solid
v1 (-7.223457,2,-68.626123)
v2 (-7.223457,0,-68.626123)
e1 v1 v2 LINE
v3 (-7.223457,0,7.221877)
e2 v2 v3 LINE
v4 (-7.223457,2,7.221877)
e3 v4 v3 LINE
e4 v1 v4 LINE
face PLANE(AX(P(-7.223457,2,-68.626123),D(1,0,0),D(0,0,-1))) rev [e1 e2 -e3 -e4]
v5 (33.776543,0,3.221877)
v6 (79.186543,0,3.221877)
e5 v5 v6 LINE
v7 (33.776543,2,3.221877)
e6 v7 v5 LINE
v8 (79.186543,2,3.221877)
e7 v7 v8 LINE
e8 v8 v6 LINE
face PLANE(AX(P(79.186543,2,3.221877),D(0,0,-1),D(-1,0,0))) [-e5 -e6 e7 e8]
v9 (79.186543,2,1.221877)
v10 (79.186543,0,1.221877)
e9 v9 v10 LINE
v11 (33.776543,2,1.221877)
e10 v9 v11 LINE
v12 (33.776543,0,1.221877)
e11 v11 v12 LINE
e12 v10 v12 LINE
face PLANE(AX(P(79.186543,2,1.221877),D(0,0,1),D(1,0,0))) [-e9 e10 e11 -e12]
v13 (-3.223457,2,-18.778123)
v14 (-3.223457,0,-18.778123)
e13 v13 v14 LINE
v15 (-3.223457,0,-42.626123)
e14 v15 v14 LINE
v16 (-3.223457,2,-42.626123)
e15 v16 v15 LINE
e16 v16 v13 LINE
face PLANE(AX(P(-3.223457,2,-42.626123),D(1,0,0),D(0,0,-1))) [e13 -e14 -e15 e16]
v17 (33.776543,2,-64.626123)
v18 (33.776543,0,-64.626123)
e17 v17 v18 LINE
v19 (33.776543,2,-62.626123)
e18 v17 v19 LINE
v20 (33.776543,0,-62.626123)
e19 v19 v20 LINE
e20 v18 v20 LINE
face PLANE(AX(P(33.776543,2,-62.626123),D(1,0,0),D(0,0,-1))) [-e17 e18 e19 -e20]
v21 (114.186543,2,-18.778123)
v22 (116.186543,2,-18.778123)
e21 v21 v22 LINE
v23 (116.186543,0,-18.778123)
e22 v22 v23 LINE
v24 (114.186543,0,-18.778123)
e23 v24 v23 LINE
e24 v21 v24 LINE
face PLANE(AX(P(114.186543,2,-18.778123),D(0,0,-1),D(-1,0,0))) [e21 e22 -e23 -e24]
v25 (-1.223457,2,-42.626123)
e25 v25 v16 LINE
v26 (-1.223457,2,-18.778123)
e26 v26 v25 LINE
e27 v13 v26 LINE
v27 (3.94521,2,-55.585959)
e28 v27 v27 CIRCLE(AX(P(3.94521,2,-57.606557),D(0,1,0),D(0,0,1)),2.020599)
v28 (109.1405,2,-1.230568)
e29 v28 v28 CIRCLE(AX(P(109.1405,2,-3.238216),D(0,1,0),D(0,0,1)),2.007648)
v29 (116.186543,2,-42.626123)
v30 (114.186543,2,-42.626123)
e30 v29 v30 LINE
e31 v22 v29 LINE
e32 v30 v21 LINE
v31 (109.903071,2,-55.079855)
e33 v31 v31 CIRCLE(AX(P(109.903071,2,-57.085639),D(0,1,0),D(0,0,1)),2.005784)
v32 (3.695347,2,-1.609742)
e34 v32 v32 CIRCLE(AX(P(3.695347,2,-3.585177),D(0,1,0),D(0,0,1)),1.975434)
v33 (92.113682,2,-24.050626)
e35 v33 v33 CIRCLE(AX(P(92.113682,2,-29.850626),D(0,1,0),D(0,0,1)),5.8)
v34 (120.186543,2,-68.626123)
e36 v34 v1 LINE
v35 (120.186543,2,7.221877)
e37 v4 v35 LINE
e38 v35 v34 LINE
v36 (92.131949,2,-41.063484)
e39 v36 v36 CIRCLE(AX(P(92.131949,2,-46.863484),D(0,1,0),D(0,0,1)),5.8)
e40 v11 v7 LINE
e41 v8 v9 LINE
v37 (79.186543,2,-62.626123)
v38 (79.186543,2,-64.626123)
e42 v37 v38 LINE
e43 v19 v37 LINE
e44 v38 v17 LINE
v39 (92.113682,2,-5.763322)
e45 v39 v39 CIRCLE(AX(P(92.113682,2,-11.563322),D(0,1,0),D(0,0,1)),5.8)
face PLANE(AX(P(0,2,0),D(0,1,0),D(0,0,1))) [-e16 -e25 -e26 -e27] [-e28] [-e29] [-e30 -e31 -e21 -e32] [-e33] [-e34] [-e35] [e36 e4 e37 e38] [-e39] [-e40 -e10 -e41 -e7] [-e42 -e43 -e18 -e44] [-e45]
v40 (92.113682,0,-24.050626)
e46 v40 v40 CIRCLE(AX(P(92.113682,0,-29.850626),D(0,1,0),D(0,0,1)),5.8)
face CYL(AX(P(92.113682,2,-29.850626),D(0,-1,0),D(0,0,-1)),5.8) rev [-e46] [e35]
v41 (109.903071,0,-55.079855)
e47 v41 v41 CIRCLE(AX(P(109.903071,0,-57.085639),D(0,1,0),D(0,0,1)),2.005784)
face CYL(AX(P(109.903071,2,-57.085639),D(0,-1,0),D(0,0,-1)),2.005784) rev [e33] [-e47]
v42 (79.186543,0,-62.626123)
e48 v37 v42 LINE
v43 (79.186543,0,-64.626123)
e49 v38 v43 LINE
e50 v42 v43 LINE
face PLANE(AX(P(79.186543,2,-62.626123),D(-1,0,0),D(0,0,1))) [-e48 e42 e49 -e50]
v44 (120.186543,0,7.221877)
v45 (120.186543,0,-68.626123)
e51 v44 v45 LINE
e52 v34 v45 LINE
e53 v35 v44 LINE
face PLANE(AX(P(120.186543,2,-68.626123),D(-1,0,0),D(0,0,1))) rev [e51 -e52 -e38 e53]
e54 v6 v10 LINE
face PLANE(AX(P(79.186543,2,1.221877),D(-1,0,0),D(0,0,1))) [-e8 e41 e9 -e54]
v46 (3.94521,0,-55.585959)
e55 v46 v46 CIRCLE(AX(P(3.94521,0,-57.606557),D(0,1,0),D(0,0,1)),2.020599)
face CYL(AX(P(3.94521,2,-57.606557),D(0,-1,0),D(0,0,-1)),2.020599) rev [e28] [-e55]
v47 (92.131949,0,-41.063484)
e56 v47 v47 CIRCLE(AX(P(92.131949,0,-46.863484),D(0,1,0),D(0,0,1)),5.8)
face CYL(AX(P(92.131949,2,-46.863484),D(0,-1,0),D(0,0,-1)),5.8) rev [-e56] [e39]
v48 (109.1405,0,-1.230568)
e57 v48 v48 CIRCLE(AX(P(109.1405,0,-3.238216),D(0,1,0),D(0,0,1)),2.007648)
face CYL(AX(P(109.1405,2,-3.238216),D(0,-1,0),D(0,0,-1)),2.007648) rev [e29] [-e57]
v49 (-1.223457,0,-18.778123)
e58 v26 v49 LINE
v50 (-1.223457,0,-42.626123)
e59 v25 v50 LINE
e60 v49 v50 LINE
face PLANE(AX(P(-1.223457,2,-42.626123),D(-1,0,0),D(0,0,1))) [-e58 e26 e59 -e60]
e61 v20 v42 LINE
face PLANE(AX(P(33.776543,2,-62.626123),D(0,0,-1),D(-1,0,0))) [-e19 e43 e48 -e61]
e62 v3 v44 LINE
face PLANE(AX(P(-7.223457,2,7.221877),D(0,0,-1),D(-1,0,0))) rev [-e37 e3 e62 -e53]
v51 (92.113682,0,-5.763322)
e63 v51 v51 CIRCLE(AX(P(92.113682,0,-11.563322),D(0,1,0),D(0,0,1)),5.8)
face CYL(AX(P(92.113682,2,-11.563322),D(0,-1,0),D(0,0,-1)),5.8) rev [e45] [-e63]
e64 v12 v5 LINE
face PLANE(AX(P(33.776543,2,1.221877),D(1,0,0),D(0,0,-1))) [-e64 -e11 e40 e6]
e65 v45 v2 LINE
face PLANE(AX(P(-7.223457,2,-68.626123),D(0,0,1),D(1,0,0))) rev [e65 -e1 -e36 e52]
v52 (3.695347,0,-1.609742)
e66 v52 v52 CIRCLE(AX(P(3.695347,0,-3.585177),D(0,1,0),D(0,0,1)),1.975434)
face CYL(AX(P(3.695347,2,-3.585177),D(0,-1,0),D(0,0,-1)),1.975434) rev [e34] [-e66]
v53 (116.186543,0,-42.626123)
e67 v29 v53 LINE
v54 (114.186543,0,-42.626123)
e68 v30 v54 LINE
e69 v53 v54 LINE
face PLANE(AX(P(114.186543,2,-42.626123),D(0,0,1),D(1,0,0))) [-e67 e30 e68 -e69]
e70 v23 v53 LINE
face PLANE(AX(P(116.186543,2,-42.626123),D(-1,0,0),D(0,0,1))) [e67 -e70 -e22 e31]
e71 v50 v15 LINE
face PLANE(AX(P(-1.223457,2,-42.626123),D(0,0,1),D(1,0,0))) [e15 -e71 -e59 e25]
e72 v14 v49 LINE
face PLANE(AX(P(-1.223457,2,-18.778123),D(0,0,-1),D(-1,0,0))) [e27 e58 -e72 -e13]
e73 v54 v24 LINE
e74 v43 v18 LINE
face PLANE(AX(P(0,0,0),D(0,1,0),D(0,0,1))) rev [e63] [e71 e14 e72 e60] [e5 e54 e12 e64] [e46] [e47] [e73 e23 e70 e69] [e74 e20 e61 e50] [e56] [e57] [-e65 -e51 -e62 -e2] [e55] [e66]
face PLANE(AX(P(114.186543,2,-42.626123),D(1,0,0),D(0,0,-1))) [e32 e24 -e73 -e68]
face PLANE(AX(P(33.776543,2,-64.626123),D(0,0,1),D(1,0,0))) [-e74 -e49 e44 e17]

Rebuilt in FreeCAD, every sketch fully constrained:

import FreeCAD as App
import Part
import Sketcher

V = App.Vector


def add_polygon(sketch, points):
    """Adds a closed chain of lines whose ends are joined by coincident constraints."""
    first, n = sketch.GeometryCount, len(points)
    for a, b in zip(points, points[1:] + points[:1]):
        sketch.addGeometry(Part.LineSegment(App.Vector(*a, 0), App.Vector(*b, 0)), False)
    for i in range(n):
        sketch.addConstraint(Sketcher.Constraint("Coincident", first + i, 2, first + (i + 1) % n, 1))

doc = App.newDocument("Part")
body = doc.addObject("PartDesign::Body", "Body")

# Sketch on XZ plane
sketch1 = body.newObject("Sketcher::SketchObject", "Sketch")
sketch1.AttachmentSupport = (doc.getObject("XZ_Plane"), [""])
sketch1.MapMode = "FlatFace"
add_polygon(sketch1, [(-7.2, -68.6), (-7.2, 7.2), (120.2, 7.2), (120.2, -68.6)])  # lines 0-3
sketch1.addGeometry(Part.Circle(V(3.7, -3.6, 0), V(0, 0, 1), 2), False)  # 4
add_polygon(sketch1, [(-1.2, -18.8), (-3.2, -18.8), (-3.2, -42.6), (-1.2, -42.6)])  # lines 5-8
add_polygon(sketch1, [(79.2, 3.2), (33.8, 3.2), (33.8, 1.2), (79.2, 1.2)])  # lines 9-12
sketch1.addGeometry(Part.Circle(V(109.1, -3.2, 0), V(0, 0, 1), 2), False)  # 13
sketch1.addGeometry(Part.Circle(V(92.1, -11.6, 0), V(0, 0, 1), 5.8), False)  # 14
sketch1.addGeometry(Part.Circle(V(92.1, -29.9, 0), V(0, 0, 1), 5.8), False)  # 15
add_polygon(sketch1, [(116.2, -18.8), (114.2, -18.8), (114.2, -42.6), (116.2, -42.6)])  # lines 16-19
sketch1.addGeometry(Part.Circle(V(3.9, -57.6, 0), V(0, 0, 1), 2), False)  # 20
sketch1.addGeometry(Part.Circle(V(92.1, -46.9, 0), V(0, 0, 1), 5.8), False)  # 21
add_polygon(sketch1, [(79.2, -62.6), (33.8, -62.6), (33.8, -64.6), (79.2, -64.6)])  # lines 22-25
sketch1.addGeometry(Part.Circle(V(109.9, -57.1, 0), V(0, 0, 1), 2), False)  # 26
sketch1.addConstraint([
    Sketcher.Constraint("Vertical", 0),
    Sketcher.Constraint("Horizontal", 1),
    Sketcher.Constraint("Vertical", 2),
    Sketcher.Constraint("Horizontal", 3),
    Sketcher.Constraint("Horizontal", 5),
    Sketcher.Constraint("Vertical", 6),
    Sketcher.Constraint("Horizontal", 7),
    Sketcher.Constraint("Vertical", 8),
    Sketcher.Constraint("Horizontal", 9),
    Sketcher.Constraint("Vertical", 10),
    Sketcher.Constraint("Horizontal", 11),
    Sketcher.Constraint("Vertical", 12),
    Sketcher.Constraint("Horizontal", 16),
    Sketcher.Constraint("Vertical", 17),
    Sketcher.Constraint("Horizontal", 18),
    Sketcher.Constraint("Vertical", 19),
    Sketcher.Constraint("Horizontal", 22),
    Sketcher.Constraint("Vertical", 23),
    Sketcher.Constraint("Horizontal", 24),
    Sketcher.Constraint("Vertical", 25),
    Sketcher.Constraint("Equal", 14, 15),
    Sketcher.Constraint("Equal", 15, 21),
    Sketcher.Constraint("Horizontal", 8, 2, 16, 2),
    Sketcher.Constraint("Horizontal", 7, 2, 17, 2),
    Sketcher.Constraint("Vertical", 14, 3, 15, 3),
    Sketcher.Constraint("Vertical", 10, 2, 22, 2),
    Sketcher.Constraint("Vertical", 12, 2, 24, 2),
    Sketcher.Constraint("Equal", 7, 16),
    Sketcher.Constraint("Equal", 18, 10),
    Sketcher.Constraint("Equal", 12, 23),
    Sketcher.Constraint("Diameter", 14, 11.6),
    Sketcher.Constraint("DistanceX", 5, 2, 5, 1, 2.0),
    Sketcher.Constraint("DistanceX", 0, 2, 5, 2, 4.0),
    Sketcher.Constraint("DistanceY", 5, 2, 0, 2, 26.0),
    Sketcher.Constraint("DistanceY", 3, 2, 6, 2, 26.0),
    Sketcher.Constraint("DistanceX", 0, 2, 9, 2, 41.0),
    Sketcher.Constraint("DistanceY", 9, 2, 0, 2, 4.0),
    Sketcher.Constraint("DistanceX", 11, 2, 1, 2, 41.0),
    Sketcher.Constraint("DistanceX", 16, 2, 1, 2, 6.0),
    Sketcher.Constraint("DistanceY", 22, 2, 7, 2, 20.0),
    Sketcher.Constraint("DistanceX", 1, 1, 1, 2, 127.41),
    Sketcher.Constraint("Diameter", 4, 3.950869),
    Sketcher.Constraint("Diameter", 26, 4.011569),
    Sketcher.Constraint("DistanceY", 0, 1, 0, 2, 75.848),
    Sketcher.Constraint("Diameter", 13, 4.015295),
    Sketcher.Constraint("Diameter", 20, 4.041197),
    Sketcher.Constraint("DistanceX", -1, 1, 13, 3, 109.1405),
    Sketcher.Constraint("DistanceX", 4, 3, 21, 3, 88.436602),
    Sketcher.Constraint("DistanceY", 14, 3, 0, 2, 18.785199),
    Sketcher.Constraint("DistanceX", -1, 1, 20, 3, 3.94521),
    Sketcher.Constraint("DistanceX", -1, 1, 21, 3, 92.131949),
    Sketcher.Constraint("DistanceX", -1, 1, 26, 3, 109.903071),
    Sketcher.Constraint("DistanceY", 26, 3, -1, 1, 57.085639),
    Sketcher.Constraint("DistanceY", 4, 3, 13, 3, 0.346961),
    Sketcher.Constraint("DistanceY", 15, 3, 13, 3, 26.61241),
    Sketcher.Constraint("DistanceY", 20, 3, 4, 3, 54.021381),
    Sketcher.Constraint("DistanceY", 21, 3, 14, 3, 35.300161),
    Sketcher.Constraint("DistanceY", 21, 3, 13, 3, 43.625268),
    Sketcher.Constraint("DistanceX", 15, 3, 26, 3, 17.789388),
    Sketcher.Constraint("DistanceY", 20, 3, 26, 3, 0.520918),
    Sketcher.Constraint("DistanceX", 0, 2, 14, 3, 99.337139),
])
pad1 = body.newObject("PartDesign::Pad", "Pad")
pad1.Profile = sketch1
pad1.Length = 2
pad1.Reversed = True

doc.recompute()
